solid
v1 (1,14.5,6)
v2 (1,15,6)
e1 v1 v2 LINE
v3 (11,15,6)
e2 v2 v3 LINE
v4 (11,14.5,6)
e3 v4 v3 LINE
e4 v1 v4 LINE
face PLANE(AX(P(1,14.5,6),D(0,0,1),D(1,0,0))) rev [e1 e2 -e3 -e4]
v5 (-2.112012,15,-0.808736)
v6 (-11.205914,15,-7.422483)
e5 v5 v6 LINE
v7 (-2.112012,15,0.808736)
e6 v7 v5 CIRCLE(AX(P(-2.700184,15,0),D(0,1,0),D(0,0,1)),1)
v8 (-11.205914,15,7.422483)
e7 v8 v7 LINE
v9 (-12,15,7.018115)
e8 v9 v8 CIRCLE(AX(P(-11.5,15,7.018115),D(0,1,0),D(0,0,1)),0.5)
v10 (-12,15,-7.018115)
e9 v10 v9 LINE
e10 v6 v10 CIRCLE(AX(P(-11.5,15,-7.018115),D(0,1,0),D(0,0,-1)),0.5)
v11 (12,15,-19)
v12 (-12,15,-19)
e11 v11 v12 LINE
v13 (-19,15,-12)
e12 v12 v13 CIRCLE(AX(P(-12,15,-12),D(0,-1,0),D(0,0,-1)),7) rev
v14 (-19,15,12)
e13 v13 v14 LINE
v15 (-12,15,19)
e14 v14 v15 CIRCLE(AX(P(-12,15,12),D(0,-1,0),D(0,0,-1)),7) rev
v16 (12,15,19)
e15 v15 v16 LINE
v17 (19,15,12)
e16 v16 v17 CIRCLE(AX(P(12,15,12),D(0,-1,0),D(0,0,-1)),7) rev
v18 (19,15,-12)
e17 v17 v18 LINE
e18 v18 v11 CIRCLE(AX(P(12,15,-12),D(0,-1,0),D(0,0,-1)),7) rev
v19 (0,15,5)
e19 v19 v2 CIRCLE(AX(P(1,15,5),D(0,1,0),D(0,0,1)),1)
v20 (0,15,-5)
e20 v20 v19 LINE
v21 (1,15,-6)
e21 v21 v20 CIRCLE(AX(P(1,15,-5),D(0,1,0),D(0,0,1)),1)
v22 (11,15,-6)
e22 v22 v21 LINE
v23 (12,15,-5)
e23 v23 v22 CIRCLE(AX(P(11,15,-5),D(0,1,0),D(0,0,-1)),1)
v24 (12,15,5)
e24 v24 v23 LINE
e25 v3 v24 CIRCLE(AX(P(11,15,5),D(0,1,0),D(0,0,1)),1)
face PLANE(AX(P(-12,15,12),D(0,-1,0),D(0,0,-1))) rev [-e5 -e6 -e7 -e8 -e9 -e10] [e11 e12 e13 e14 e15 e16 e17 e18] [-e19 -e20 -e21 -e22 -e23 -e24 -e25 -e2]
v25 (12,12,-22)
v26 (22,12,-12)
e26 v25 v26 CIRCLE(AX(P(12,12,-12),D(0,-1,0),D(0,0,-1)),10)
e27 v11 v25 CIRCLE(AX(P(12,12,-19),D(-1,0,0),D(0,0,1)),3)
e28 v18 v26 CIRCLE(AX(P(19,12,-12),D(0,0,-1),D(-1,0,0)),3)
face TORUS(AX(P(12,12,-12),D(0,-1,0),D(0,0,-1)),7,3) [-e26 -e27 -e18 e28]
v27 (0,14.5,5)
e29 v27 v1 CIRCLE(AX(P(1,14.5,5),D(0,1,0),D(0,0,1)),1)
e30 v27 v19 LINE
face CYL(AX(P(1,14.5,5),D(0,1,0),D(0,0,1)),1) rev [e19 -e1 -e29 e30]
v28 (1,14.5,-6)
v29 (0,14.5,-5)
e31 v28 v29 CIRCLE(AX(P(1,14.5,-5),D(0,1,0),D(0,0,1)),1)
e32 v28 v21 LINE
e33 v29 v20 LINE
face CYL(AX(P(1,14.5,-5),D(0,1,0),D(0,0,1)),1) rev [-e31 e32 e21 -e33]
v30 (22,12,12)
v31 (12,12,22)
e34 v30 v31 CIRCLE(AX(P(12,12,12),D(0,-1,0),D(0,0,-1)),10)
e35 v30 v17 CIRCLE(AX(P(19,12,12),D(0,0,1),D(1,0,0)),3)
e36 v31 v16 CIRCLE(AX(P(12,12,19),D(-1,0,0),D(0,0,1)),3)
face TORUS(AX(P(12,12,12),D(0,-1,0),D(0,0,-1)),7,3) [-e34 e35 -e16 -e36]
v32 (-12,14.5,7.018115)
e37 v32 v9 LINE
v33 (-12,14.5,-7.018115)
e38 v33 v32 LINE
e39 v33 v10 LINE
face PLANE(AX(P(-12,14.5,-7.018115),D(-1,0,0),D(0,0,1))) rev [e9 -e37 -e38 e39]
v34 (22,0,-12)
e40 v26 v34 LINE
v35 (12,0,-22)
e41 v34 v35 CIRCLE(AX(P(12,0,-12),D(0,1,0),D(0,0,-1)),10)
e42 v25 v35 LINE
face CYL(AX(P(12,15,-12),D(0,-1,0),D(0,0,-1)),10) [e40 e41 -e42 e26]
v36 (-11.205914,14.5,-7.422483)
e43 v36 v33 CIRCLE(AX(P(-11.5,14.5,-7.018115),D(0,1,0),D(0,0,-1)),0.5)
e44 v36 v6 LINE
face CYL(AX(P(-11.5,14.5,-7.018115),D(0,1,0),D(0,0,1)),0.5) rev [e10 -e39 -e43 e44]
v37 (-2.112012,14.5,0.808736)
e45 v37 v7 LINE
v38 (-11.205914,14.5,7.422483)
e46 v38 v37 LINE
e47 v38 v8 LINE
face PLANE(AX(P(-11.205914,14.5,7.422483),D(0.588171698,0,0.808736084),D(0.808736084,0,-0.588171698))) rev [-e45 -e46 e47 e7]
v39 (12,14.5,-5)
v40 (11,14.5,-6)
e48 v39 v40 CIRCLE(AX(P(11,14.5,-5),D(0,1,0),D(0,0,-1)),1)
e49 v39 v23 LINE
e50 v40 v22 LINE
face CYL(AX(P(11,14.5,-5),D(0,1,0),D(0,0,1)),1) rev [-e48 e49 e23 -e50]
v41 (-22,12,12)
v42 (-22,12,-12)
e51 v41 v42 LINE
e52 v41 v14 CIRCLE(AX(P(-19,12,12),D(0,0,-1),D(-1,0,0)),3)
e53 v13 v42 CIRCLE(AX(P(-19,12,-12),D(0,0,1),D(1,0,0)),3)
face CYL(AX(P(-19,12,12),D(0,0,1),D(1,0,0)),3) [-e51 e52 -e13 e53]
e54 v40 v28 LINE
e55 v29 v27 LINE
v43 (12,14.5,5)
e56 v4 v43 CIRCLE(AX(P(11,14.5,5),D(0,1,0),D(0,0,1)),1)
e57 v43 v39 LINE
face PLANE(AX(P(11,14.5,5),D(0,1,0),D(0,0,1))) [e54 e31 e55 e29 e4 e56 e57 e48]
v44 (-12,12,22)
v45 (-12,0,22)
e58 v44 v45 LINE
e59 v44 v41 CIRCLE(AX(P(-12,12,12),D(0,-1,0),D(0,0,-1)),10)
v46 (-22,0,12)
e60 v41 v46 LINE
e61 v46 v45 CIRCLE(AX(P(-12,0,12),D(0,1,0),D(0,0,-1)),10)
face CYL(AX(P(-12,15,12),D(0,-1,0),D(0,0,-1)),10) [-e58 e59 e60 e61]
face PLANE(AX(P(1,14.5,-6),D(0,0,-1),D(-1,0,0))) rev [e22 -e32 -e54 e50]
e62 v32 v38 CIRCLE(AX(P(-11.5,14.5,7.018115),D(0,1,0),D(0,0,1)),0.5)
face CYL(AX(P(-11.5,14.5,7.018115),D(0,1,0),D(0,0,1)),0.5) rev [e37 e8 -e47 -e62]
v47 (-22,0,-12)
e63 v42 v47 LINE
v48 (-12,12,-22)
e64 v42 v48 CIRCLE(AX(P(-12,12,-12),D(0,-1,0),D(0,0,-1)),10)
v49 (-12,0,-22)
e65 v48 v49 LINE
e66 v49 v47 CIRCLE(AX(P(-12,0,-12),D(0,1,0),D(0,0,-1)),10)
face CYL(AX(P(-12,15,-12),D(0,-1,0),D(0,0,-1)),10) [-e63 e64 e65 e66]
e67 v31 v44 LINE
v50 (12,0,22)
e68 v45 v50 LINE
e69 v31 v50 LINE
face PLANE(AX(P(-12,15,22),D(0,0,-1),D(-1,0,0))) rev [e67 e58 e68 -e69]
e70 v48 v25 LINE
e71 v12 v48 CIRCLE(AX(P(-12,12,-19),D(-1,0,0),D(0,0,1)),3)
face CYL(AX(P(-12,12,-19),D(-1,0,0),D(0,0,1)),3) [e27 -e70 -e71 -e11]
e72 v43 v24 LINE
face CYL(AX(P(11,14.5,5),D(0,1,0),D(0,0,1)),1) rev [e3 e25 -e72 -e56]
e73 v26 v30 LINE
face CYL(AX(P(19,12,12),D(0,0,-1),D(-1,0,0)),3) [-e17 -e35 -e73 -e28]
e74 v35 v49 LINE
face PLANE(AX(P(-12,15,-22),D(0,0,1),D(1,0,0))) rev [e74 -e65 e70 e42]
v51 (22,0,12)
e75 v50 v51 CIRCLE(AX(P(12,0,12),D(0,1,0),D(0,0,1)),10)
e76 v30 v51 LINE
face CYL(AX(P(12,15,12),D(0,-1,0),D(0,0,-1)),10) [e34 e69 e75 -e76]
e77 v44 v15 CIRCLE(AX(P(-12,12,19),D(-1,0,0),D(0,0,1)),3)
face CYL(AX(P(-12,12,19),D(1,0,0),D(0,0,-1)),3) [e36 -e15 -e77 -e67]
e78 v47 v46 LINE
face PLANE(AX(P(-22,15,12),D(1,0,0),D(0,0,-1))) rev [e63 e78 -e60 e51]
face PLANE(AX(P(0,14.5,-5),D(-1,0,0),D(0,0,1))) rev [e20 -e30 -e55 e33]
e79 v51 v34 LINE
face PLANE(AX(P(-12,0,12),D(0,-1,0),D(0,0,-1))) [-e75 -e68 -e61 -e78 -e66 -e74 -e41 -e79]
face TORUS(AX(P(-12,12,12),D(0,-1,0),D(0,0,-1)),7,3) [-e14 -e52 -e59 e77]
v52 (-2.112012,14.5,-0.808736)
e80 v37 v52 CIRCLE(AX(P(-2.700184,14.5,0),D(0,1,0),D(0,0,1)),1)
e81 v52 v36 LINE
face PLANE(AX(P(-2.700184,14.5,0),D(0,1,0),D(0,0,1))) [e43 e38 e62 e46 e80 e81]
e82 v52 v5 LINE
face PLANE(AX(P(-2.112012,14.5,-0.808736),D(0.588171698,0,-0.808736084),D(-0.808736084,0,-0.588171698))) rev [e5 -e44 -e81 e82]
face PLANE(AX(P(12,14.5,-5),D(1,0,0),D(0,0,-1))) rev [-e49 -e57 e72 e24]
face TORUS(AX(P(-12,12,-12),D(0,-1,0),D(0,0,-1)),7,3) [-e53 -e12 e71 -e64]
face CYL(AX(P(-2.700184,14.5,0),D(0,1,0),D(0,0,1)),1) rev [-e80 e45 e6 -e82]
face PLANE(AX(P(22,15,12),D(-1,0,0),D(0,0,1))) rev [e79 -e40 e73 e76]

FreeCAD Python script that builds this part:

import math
import FreeCAD as App
import Part
import Sketcher

V = App.Vector
Q = App.Units.Quantity


def edges_at(feature, points):
    """Names of the edges that pass closest to the given points."""
    edges = feature.Shape.Edges
    near = lambda p: min(range(len(edges)), key=lambda i: edges[i].distToShape(Part.Vertex(*p))[0])
    return sorted({f"Edge{near(p) + 1}" for p in points})

doc = App.newDocument("Part")
body = doc.addObject("PartDesign::Body", "Body")

sketch1 = doc.addObject("Sketcher::SketchObject", "Sketch")
body.addObject(sketch1)
sketch1.AttachmentSupport = (doc.XZ_Plane, [""])
sketch1.MapMode = "FlatFace"
sketch1.addGeometry([
    Part.LineSegment(V(-12, 22, 0), V(12, 22, 0)),
    Part.ArcOfCircle(Part.Circle(V(12, 12, 0), V(0, 0, 1), 10), math.radians(0), math.radians(90)),
    Part.LineSegment(V(22, 12, 0), V(22, -12, 0)),
    Part.ArcOfCircle(Part.Circle(V(12, -12, 0), V(0, 0, 1), 10), math.radians(-90), math.radians(0)),
    Part.LineSegment(V(12, -22, 0), V(-12, -22, 0)),
    Part.ArcOfCircle(Part.Circle(V(-12, -12, 0), V(0, 0, 1), 10), math.radians(180), math.radians(270)),
    Part.LineSegment(V(-22, -12, 0), V(-22, 12, 0)),
    Part.ArcOfCircle(Part.Circle(V(-12, 12, 0), V(0, 0, 1), 10), math.radians(90), math.radians(180)),
], False)
sketch1.addConstraint([
    Sketcher.Constraint("Tangent", 0, 2, 1, 2),
    Sketcher.Constraint("Tangent", 1, 1, 2, 1),
    Sketcher.Constraint("Tangent", 2, 2, 3, 2),
    Sketcher.Constraint("Tangent", 3, 1, 4, 1),
    Sketcher.Constraint("Tangent", 4, 2, 5, 2),
    Sketcher.Constraint("Tangent", 5, 1, 6, 1),
    Sketcher.Constraint("Tangent", 6, 2, 7, 2),
    Sketcher.Constraint("Tangent", 7, 1, 0, 1),
    Sketcher.Constraint("Horizontal", 0),
    Sketcher.Constraint("Vertical", 2),
    Sketcher.Constraint("Horizontal", 4),
    Sketcher.Constraint("Vertical", 6),
    Sketcher.Constraint("Equal", 1, 3),
    Sketcher.Constraint("Equal", 3, 5),
    Sketcher.Constraint("Equal", 5, 7),
    Sketcher.Constraint("Symmetric", 1, 3, 5, 3, -1, 1),
    Sketcher.Constraint("Equal", 4, 2),
    Sketcher.Constraint("Radius", 1, Q("10 mm")),
    Sketcher.Constraint("DistanceX", 0, 1, 0, 2, Q("24 mm")),
])
pad1 = doc.addObject("PartDesign::Pad", "Pad")
body.addObject(pad1)
pad1.Profile = sketch1
pad1.Length = 15
pad1.Reversed = True
doc.recompute()

fillet = doc.addObject("PartDesign::Fillet", "Fillet")
body.addObject(fillet)
fillet.Base = (pad1, edges_at(pad1, [
    (19.071, 15, 19.071),
    (22, 15, 0),
    (19.071, 15, -19.071),
    (0, 15, -22),
    (-19.071, 15, -19.071),
    (-22, 15, 0),
    (-19.071, 15, 19.071),
    (0, 15, 22),
]))
fillet.Radius = 3

sketch2 = doc.addObject("Sketcher::SketchObject", "Sketch001")
body.addObject(sketch2)
sketch2.AttachmentSupport = (doc.XZ_Plane, [""])
sketch2.MapMode = "FlatFace"
sketch2.AttachmentOffset = App.Placement(V(0, 0, -15), App.Rotation())
sketch2.addGeometry([
    Part.LineSegment(V(-12, -7, 0), V(-12, 7, 0)),
    Part.ArcOfCircle(Part.Circle(V(-11.5, 7, 0), V(0, 0, 1), 0.5), math.radians(54), math.radians(180)),
    Part.LineSegment(V(-11.2, 7.4, 0), V(-2.1, 0.8, 0)),
    Part.ArcOfCircle(Part.Circle(V(-2.7, 0, 0), V(0, 0, 1), 1), math.radians(-54), math.radians(54)),
    Part.LineSegment(V(-2.1, -0.8, 0), V(-11.2, -7.4, 0)),
    Part.ArcOfCircle(Part.Circle(V(-11.5, -7, 0), V(0, 0, 1), 0.5), math.radians(180), math.radians(306)),
    Part.LineSegment(V(11, -6, 0), V(1, -6, 0)),
    Part.ArcOfCircle(Part.Circle(V(1, -5, 0), V(0, 0, 1), 1), math.radians(-180), math.radians(-90)),
    Part.LineSegment(V(0, -5, 0), V(0, 5, 0)),
    Part.ArcOfCircle(Part.Circle(V(1, 5, 0), V(0, 0, 1), 1), math.radians(90), math.radians(180)),
    Part.LineSegment(V(1, 6, 0), V(11, 6, 0)),
    Part.ArcOfCircle(Part.Circle(V(11, 5, 0), V(0, 0, 1), 1), math.radians(0), math.radians(90)),
    Part.LineSegment(V(12, 5, 0), V(12, -5, 0)),
    Part.ArcOfCircle(Part.Circle(V(11, -5, 0), V(0, 0, 1), 1), math.radians(-90), math.radians(0)),
], False)
sketch2.addConstraint([
    Sketcher.Constraint("Tangent", 0, 2, 1, 2),
    Sketcher.Constraint("Tangent", 1, 1, 2, 1),
    Sketcher.Constraint("Tangent", 2, 2, 3, 2),
    Sketcher.Constraint("Tangent", 3, 1, 4, 1),
    Sketcher.Constraint("Tangent", 4, 2, 5, 2),
    Sketcher.Constraint("Tangent", 5, 1, 0, 1),
    Sketcher.Constraint("Tangent", 6, 2, 7, 2),
    Sketcher.Constraint("Tangent", 7, 1, 8, 1),
    Sketcher.Constraint("Tangent", 8, 2, 9, 2),
    Sketcher.Constraint("Tangent", 9, 1, 10, 1),
    Sketcher.Constraint("Tangent", 10, 2, 11, 2),
    Sketcher.Constraint("Tangent", 11, 1, 12, 1),
    Sketcher.Constraint("Tangent", 12, 2, 13, 2),
    Sketcher.Constraint("Tangent", 13, 1, 6, 1),
    Sketcher.Constraint("Vertical", 0),
    Sketcher.Constraint("Horizontal", 6),
    Sketcher.Constraint("Vertical", 8),
    Sketcher.Constraint("Horizontal", 10),
    Sketcher.Constraint("Vertical", 12),
    Sketcher.Constraint("Equal", 1, 5),
    Sketcher.Constraint("Equal", 3, 7),
    Sketcher.Constraint("Equal", 7, 9),
    Sketcher.Constraint("Equal", 9, 11),
    Sketcher.Constraint("Equal", 11, 13),
    Sketcher.Constraint("Symmetric", 7, 1, 8, 2, -1, 1),
    Sketcher.Constraint("Symmetric", 2, 2, 3, 1, -1),
    Sketcher.Constraint("Equal", 10, 8),
    Sketcher.Constraint("Radius", 3, Q("1 mm")),
    Sketcher.Constraint("Radius", 1, Q("0.5 mm")),
    Sketcher.Constraint("DistanceX", 6, 2, 6, 1, Q("10 mm")),
    Sketcher.Constraint("DistanceX", 0, 2, -1, 1, Q("12 mm")),
    Sketcher.Constraint("DistanceY", 0, 1, 0, 2, Q("14.03623 mm")),
    Sketcher.Constraint("DistanceY", 1, 3, 1, 1, Q("0.404368 mm")),
])
pocket1 = doc.addObject("PartDesign::Pocket", "Pocket")
body.addObject(pocket1)
pocket1.Profile = sketch2
pocket1.Length = 0.5
pocket1.Reversed = True

doc.recompute()
